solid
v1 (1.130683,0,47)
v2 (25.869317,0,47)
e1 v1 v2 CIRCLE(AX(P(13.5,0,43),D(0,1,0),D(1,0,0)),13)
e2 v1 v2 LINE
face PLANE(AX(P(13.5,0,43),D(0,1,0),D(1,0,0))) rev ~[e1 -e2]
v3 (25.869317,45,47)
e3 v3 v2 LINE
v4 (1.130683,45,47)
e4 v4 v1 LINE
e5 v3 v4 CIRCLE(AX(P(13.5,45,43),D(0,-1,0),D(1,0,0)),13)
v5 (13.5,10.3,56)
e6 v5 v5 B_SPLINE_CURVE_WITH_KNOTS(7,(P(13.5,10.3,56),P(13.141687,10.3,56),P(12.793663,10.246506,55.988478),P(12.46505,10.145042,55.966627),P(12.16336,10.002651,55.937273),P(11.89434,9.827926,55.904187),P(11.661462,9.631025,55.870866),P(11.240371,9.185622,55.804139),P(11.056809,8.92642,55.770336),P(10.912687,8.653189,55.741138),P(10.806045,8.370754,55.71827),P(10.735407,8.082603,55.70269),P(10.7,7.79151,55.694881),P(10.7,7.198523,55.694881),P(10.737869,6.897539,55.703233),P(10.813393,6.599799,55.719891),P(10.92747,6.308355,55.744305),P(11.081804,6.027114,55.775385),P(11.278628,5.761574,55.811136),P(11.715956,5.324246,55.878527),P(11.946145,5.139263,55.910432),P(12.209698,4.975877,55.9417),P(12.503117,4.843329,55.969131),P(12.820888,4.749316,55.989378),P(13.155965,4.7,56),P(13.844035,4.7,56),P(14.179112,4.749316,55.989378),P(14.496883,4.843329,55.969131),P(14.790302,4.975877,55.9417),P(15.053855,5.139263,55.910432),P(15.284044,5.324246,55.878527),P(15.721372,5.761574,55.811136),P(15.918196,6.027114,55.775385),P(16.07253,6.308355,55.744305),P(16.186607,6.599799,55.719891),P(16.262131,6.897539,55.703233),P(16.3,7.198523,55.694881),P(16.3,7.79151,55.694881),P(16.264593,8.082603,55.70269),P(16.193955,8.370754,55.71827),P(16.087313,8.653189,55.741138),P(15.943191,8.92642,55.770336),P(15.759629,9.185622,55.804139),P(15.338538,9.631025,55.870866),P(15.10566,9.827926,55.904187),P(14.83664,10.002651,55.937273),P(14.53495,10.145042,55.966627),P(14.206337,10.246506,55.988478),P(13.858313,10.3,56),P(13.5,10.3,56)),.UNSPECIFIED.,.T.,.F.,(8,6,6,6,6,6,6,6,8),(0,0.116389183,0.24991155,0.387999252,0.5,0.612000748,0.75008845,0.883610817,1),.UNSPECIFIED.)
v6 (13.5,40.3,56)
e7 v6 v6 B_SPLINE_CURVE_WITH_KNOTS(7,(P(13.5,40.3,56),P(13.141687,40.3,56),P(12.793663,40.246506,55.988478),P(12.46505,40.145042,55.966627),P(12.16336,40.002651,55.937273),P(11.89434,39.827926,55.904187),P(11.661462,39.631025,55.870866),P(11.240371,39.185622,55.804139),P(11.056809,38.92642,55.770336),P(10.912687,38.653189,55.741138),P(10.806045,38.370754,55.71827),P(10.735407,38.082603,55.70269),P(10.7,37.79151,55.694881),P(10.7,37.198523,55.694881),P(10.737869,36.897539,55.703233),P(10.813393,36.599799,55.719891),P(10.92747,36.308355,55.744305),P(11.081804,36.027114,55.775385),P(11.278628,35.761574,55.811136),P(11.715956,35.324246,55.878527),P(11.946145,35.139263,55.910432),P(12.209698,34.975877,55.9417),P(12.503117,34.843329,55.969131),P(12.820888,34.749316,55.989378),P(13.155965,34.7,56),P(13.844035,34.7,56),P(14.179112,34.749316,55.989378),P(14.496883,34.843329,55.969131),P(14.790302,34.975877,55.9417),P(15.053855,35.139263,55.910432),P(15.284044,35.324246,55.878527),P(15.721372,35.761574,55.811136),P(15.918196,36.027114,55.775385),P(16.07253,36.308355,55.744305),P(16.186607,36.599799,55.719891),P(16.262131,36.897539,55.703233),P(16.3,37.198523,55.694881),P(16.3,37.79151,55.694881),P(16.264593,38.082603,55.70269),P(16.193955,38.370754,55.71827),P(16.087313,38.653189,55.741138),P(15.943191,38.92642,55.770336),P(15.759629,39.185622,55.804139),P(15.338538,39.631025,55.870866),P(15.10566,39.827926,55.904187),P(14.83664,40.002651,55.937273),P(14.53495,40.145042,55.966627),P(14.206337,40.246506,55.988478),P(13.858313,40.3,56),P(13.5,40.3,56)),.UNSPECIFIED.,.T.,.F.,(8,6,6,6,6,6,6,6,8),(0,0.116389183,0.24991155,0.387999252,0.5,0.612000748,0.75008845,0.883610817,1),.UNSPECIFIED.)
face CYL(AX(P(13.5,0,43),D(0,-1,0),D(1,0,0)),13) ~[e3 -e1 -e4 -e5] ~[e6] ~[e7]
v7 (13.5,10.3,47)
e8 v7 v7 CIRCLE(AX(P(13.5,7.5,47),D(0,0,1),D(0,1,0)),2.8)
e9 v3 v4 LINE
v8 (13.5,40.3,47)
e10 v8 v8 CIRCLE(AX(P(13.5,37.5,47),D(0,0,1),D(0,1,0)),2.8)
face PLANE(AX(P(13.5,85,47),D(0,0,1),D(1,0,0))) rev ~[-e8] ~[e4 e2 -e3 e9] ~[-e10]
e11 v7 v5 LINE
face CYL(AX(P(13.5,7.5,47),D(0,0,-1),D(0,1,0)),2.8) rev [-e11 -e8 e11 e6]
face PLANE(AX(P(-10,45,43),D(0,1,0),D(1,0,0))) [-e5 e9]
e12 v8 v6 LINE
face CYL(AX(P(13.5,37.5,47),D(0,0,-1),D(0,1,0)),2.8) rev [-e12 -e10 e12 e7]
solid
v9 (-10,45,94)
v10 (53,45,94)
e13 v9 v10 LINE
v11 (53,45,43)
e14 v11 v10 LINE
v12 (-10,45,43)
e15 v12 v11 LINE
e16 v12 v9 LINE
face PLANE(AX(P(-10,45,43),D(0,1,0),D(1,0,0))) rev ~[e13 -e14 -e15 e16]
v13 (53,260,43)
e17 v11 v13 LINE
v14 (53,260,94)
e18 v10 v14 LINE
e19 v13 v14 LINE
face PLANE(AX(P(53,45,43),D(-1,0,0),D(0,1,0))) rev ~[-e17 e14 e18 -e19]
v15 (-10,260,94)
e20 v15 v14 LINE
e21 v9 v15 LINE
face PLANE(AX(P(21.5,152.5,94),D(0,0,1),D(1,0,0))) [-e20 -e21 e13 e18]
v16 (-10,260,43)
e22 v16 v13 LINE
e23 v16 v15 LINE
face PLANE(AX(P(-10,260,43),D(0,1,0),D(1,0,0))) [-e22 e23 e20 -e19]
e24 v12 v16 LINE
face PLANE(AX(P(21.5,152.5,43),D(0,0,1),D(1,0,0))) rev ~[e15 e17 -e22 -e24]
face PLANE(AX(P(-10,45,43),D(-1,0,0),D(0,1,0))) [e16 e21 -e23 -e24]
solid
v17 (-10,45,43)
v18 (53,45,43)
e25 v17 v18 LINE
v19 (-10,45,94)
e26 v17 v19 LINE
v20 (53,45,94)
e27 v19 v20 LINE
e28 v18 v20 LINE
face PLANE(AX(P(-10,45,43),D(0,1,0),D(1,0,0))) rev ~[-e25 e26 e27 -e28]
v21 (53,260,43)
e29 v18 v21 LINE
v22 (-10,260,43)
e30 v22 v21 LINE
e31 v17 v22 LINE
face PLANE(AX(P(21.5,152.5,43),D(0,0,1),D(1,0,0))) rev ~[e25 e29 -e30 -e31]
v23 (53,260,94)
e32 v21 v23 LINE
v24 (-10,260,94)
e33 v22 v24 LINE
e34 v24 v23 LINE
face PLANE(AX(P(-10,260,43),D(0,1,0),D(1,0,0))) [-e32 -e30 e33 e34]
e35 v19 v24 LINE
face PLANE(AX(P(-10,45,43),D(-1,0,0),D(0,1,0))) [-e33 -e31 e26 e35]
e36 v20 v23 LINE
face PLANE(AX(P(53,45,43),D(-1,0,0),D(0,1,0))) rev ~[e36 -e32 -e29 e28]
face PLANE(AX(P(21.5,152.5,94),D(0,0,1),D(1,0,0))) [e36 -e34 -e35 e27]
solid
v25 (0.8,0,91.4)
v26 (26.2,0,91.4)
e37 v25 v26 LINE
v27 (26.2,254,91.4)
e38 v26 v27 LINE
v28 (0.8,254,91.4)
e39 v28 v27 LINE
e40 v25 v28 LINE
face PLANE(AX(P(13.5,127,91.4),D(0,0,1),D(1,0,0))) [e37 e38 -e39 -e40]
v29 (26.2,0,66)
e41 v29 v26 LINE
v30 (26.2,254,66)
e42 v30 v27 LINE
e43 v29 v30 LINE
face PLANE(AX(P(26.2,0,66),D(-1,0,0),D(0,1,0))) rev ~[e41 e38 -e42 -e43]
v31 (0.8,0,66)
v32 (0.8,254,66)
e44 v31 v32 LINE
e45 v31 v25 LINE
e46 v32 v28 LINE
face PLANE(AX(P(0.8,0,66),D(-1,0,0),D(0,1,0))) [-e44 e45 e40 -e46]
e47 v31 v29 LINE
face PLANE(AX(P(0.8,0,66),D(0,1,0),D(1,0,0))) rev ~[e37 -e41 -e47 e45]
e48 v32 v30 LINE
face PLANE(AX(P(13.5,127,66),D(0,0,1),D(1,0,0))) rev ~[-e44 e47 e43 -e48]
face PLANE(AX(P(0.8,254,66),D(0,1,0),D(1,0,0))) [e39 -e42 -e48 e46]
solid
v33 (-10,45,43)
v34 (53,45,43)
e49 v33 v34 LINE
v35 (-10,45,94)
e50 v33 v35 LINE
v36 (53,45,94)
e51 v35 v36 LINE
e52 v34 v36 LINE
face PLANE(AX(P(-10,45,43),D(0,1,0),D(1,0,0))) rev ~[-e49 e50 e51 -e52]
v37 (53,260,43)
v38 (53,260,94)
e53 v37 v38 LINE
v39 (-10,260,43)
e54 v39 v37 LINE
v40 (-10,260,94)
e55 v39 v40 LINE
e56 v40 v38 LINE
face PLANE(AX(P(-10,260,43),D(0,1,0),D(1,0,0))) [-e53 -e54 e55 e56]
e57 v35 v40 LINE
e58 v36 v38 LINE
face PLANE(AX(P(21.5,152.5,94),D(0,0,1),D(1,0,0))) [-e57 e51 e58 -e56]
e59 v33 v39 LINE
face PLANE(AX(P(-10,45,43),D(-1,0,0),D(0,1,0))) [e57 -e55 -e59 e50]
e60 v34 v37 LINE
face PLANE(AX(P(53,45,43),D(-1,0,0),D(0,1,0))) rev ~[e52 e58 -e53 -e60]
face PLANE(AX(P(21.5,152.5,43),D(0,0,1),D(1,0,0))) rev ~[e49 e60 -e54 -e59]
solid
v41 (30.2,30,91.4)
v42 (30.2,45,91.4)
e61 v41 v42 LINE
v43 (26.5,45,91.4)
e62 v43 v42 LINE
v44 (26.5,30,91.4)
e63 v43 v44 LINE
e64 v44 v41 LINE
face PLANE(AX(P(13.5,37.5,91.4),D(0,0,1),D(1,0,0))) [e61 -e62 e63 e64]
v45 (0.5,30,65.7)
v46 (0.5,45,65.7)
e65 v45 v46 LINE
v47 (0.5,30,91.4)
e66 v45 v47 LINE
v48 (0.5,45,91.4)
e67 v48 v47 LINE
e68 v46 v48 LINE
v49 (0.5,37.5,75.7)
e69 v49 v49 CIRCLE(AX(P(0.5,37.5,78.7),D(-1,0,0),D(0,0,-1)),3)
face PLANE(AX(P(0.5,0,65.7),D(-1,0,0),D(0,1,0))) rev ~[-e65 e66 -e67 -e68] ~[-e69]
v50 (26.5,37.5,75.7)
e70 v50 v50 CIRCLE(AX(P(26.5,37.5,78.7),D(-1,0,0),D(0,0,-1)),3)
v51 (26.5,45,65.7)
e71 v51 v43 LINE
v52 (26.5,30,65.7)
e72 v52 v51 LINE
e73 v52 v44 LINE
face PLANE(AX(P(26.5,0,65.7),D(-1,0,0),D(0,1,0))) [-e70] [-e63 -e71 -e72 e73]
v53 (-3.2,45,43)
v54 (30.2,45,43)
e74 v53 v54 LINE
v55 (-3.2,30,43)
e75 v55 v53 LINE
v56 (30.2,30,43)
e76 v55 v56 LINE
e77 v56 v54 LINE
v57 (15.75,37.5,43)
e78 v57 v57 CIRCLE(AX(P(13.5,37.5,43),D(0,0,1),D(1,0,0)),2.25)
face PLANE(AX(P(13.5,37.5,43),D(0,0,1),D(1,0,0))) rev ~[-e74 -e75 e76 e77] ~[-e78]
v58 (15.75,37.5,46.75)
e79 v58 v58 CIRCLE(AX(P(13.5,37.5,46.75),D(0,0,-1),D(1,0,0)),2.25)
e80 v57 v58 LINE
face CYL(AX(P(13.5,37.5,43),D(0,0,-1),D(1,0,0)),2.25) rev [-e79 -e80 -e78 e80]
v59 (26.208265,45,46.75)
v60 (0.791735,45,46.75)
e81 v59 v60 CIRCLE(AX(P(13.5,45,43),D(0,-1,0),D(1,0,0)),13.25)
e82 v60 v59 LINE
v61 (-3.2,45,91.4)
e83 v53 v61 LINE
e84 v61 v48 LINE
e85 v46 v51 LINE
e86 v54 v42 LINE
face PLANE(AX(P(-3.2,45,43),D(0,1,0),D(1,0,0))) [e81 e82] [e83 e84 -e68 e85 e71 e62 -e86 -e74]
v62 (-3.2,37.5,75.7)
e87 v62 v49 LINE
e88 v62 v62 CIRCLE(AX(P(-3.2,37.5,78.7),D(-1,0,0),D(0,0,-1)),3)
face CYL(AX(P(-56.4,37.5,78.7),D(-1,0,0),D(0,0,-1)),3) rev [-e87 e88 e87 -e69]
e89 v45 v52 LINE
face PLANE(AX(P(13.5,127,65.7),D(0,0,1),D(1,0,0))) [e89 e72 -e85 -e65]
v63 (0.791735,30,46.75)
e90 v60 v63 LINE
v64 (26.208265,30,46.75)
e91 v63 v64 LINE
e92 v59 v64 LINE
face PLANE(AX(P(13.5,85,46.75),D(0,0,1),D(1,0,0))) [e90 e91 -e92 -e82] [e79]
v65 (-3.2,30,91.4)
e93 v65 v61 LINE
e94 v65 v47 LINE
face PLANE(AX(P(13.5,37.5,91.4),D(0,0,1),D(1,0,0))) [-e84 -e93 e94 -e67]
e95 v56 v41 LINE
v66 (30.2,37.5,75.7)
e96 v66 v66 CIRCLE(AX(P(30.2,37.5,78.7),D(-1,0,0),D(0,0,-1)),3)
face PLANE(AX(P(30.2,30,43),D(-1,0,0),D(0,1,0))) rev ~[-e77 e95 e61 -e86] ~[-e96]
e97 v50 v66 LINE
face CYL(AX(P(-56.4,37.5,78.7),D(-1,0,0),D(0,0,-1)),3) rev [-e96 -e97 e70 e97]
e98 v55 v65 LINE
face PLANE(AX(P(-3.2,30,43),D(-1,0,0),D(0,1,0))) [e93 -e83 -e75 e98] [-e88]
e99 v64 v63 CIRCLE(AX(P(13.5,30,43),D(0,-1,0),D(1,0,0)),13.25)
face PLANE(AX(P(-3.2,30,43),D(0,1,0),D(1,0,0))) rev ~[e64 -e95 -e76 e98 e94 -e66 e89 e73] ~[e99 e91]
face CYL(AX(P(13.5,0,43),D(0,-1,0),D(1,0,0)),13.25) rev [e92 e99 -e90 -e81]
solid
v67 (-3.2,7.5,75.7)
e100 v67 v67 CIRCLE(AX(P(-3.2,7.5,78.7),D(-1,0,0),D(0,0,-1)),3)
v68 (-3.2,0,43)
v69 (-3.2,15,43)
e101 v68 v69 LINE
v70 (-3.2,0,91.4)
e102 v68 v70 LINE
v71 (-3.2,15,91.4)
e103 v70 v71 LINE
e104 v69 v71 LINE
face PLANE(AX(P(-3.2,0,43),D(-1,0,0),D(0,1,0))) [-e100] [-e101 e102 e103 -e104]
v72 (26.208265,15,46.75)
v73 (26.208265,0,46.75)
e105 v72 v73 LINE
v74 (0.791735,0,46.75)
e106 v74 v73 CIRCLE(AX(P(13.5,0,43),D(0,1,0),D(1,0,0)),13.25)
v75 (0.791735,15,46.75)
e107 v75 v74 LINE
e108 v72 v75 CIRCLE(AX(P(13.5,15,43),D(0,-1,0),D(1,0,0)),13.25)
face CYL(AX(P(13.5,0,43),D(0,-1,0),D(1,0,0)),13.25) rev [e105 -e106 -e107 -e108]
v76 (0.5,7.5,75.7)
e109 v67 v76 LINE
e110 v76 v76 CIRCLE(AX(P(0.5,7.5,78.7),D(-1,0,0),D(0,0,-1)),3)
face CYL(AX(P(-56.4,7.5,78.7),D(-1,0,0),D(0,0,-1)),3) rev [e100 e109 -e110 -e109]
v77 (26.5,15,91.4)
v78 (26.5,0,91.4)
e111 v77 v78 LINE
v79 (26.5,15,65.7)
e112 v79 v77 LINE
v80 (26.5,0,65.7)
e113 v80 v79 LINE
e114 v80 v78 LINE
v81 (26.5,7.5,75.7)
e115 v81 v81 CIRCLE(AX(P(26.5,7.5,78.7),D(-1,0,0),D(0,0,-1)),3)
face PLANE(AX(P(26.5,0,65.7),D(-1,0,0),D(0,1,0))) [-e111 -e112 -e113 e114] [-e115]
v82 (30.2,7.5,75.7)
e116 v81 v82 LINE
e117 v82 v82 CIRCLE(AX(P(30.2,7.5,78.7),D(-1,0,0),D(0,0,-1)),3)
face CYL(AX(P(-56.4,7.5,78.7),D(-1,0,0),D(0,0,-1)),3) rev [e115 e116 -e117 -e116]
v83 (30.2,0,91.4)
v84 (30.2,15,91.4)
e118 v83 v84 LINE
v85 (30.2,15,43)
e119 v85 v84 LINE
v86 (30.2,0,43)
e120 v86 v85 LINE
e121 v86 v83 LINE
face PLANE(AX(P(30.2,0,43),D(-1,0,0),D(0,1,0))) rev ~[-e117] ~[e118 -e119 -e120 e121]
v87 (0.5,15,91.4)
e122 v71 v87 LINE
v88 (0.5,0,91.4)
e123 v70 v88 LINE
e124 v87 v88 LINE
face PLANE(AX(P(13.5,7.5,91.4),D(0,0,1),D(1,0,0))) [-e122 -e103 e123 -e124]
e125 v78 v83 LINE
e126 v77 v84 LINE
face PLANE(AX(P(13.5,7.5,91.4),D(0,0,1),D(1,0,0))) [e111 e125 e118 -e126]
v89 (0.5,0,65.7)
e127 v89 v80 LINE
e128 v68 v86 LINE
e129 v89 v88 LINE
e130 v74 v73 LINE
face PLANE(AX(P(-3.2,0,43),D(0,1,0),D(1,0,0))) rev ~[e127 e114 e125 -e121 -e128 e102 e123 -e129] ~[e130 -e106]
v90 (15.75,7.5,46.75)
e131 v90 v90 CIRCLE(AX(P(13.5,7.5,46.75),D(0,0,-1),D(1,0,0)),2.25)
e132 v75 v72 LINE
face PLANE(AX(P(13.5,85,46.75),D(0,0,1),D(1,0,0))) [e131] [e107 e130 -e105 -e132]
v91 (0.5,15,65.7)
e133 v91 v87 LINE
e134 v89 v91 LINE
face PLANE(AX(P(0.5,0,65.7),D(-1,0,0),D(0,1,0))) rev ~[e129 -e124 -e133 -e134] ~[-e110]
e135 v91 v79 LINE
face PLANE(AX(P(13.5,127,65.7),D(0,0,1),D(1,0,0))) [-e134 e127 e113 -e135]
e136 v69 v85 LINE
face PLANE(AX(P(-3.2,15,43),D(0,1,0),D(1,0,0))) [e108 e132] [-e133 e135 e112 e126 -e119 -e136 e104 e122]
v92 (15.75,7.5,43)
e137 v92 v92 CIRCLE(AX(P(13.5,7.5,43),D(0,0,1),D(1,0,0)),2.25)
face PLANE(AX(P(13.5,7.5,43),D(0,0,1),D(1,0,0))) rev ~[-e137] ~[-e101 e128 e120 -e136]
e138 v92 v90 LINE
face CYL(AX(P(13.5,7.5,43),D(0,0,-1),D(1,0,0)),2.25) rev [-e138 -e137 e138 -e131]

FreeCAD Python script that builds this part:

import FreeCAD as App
import Part
import Sketcher
Q = App.Units.Quantity


def add_polygon(sketch, points):
    """Adds a closed chain of lines whose ends are joined by coincident constraints."""
    first, n = sketch.GeometryCount, len(points)
    for a, b in zip(points, points[1:] + points[:1]):
        sketch.addGeometry(Part.LineSegment(App.Vector(*a, 0), App.Vector(*b, 0)), False)
    for i in range(n):
        sketch.addConstraint(Sketcher.Constraint("Coincident", first + i, 2, first + (i + 1) % n, 1))

doc = App.newDocument("Part")
body = doc.addObject("PartDesign::Body", "Body")

# Sketch on XY plane
sketch1 = body.newObject("Sketcher::SketchObject", "Sketch")
sketch1.AttachmentSupport = (doc.getObject("XY_Plane"), [""])
sketch1.MapMode = "FlatFace"
sketch1.AttachmentOffset = App.Placement(App.Vector(0, 0, 66), App.Rotation())
add_polygon(sketch1, [(0.8, 254), (0.8, 0), (26.2, 0), (26.2, 254)])  # lines 0-3
sketch1.addConstraint([
    Sketcher.Constraint("Vertical", 0),
    Sketcher.Constraint("Horizontal", 1),
    Sketcher.Constraint("Vertical", 2),
    Sketcher.Constraint("Horizontal", 3),
    Sketcher.Constraint("PointOnObject", 0, 2, -1),
    Sketcher.Constraint("DistanceY", 0, 2, 0, 1, Q("254 mm")),
    Sketcher.Constraint("DistanceX", 1, 1, 1, 2, Q("25.4 mm")),
    Sketcher.Constraint("DistanceX", -1, 1, 0, 2, Q("0.8 mm")),
])
pad1 = body.newObject("PartDesign::Pad", "Pad")
pad1.Profile = sketch1
pad1.Length = 25.4
body2 = doc.addObject("PartDesign::Body", "Body001")

# Sketch on XY plane
sketch2 = body2.newObject("Sketcher::SketchObject", "Sketch001")
sketch2.AttachmentSupport = (doc.getObject("XY_Plane001"), [""])
sketch2.MapMode = "FlatFace"
sketch2.AttachmentOffset = App.Placement(App.Vector(0, 0, 43), App.Rotation())
add_polygon(sketch2, [(-10, 260), (-10, 45), (53, 45), (53, 260)])  # lines 0-3
sketch2.addConstraint([
    Sketcher.Constraint("Vertical", 0),
    Sketcher.Constraint("Horizontal", 1),
    Sketcher.Constraint("Vertical", 2),
    Sketcher.Constraint("Horizontal", 3),
    Sketcher.Constraint("DistanceX", 1, 1, 1, 2, Q("63 mm")),
    Sketcher.Constraint("DistanceY", 0, 2, 0, 1, Q("215 mm")),
    Sketcher.Constraint("DistanceX", 0, 2, -1, 1, Q("10 mm")),
    Sketcher.Constraint("DistanceY", -1, 1, 0, 2, Q("45 mm")),
])
pad2 = body2.newObject("PartDesign::Pad", "Pad001")
pad2.Profile = sketch2
pad2.Length = 51
body3 = doc.addObject("PartDesign::Body", "Body002")

# Sketch on XY plane
sketch3 = body3.newObject("Sketcher::SketchObject", "Sketch002")
sketch3.AttachmentSupport = (doc.getObject("XY_Plane002"), [""])
sketch3.MapMode = "FlatFace"
sketch3.AttachmentOffset = App.Placement(App.Vector(0, 0, 43), App.Rotation())
add_polygon(sketch3, [(-10, 260), (-10, 45), (53, 45), (53, 260)])  # lines 0-3
sketch3.addConstraint([
    Sketcher.Constraint("Vertical", 0),
    Sketcher.Constraint("Horizontal", 1),
    Sketcher.Constraint("Vertical", 2),
    Sketcher.Constraint("Horizontal", 3),
    Sketcher.Constraint("DistanceX", 1, 1, 1, 2, Q("63 mm")),
    Sketcher.Constraint("DistanceY", 0, 2, 0, 1, Q("215 mm")),
    Sketcher.Constraint("DistanceX", 0, 2, -1, 1, Q("10 mm")),
    Sketcher.Constraint("DistanceY", -1, 1, 0, 2, Q("45 mm")),
])
pad3 = body3.newObject("PartDesign::Pad", "Pad002")
pad3.Profile = sketch3
pad3.Length = 51
body4 = doc.addObject("PartDesign::Body", "Body003")

# Sketch on XY plane
sketch4 = body4.newObject("Sketcher::SketchObject", "Sketch003")
sketch4.AttachmentSupport = (doc.getObject("XY_Plane003"), [""])
sketch4.MapMode = "FlatFace"
sketch4.AttachmentOffset = App.Placement(App.Vector(0, 0, 43), App.Rotation())
add_polygon(sketch4, [(-10, 260), (-10, 45), (53, 45), (53, 260)])  # lines 0-3
sketch4.addConstraint([
    Sketcher.Constraint("Vertical", 0),
    Sketcher.Constraint("Horizontal", 1),
    Sketcher.Constraint("Vertical", 2),
    Sketcher.Constraint("Horizontal", 3),
    Sketcher.Constraint("DistanceX", 1, 1, 1, 2, Q("63 mm")),
    Sketcher.Constraint("DistanceY", 0, 2, 0, 1, Q("215 mm")),
    Sketcher.Constraint("DistanceX", 0, 2, -1, 1, Q("10 mm")),
    Sketcher.Constraint("DistanceY", -1, 1, 0, 2, Q("45 mm")),
])
pad4 = body4.newObject("PartDesign::Pad", "Pad003")
pad4.Profile = sketch4
pad4.Length = 51
body5 = doc.addObject("PartDesign::Body", "Body004")

# Sketch on XY plane
sketch5 = body5.newObject("Sketcher::SketchObject", "Sketch004")
sketch5.AttachmentSupport = (doc.getObject("XY_Plane004"), [""])
sketch5.MapMode = "FlatFace"
sketch5.AttachmentOffset = App.Placement(App.Vector(0, 0, 47), App.Rotation())
sketch5.addGeometry(Part.Circle(App.Vector(13.5, 7.5, 0), App.Vector(0, 0, 1), 2.8), False)
sketch5.addConstraint([
    Sketcher.Constraint("Diameter", 0, Q("5.6 mm")),
    Sketcher.Constraint("DistanceX", -1, 1, 0, 3, Q("13.5 mm")),
    Sketcher.Constraint("DistanceY", -1, 1, 0, 3, Q("7.5 mm")),
])
pad5 = body5.newObject("PartDesign::Pad", "Pad004")
pad5.Profile = sketch5
pad5.Length = 10
body6 = doc.addObject("PartDesign::Body", "Body005")
body6.AllowCompound = True

# Sketch on XY plane
sketch6 = body6.newObject("Sketcher::SketchObject", "Sketch005")
sketch6.AttachmentSupport = (doc.getObject("XY_Plane005"), [""])
sketch6.MapMode = "FlatFace"
sketch6.AttachmentOffset = App.Placement(App.Vector(0, 0, 47), App.Rotation())
sketch6.addGeometry(Part.Circle(App.Vector(13.5, 37.5, 0), App.Vector(0, 0, 1), 2.8), False)
sketch6.addConstraint([
    Sketcher.Constraint("Diameter", 0, Q("5.6 mm")),
    Sketcher.Constraint("DistanceX", -1, 1, 0, 3, Q("13.5 mm")),
    Sketcher.Constraint("DistanceY", -1, 1, 0, 3, Q("37.5 mm")),
])
pad6 = body6.newObject("PartDesign::Pad", "Pad005")
pad6.Profile = sketch6
pad6.Length = 10
doc.recompute()

boolean = body6.newObject("PartDesign::Boolean", "Boolean")
boolean.Type = "Fuse"
boolean.addObjects([body5])
body7 = doc.addObject("PartDesign::Body", "Body006")

# Sketch on XY plane
sketch7 = body7.newObject("Sketcher::SketchObject", "Sketch006")
sketch7.AttachmentSupport = (doc.getObject("XY_Plane006"), [""])
sketch7.MapMode = "FlatFace"
sketch7.AttachmentOffset = App.Placement(App.Vector(0, 0, 43), App.Rotation())
add_polygon(sketch7, [(-10, 260), (-10, 45), (53, 45), (53, 260)])  # lines 0-3
sketch7.addConstraint([
    Sketcher.Constraint("Vertical", 0),
    Sketcher.Constraint("Horizontal", 1),
    Sketcher.Constraint("Vertical", 2),
    Sketcher.Constraint("Horizontal", 3),
    Sketcher.Constraint("DistanceX", 1, 1, 1, 2, Q("63 mm")),
    Sketcher.Constraint("DistanceY", 0, 2, 0, 1, Q("215 mm")),
    Sketcher.Constraint("DistanceX", 0, 2, -1, 1, Q("10 mm")),
    Sketcher.Constraint("DistanceY", -1, 1, 0, 2, Q("45 mm")),
])
pad7 = body7.newObject("PartDesign::Pad", "Pad006")
pad7.Profile = sketch7
pad7.Length = 51
body8 = doc.addObject("PartDesign::Body", "Body007")

# Sketch on XY plane
sketch8 = body8.newObject("Sketcher::SketchObject", "Sketch007")
sketch8.AttachmentSupport = (doc.getObject("XY_Plane007"), [""])
sketch8.MapMode = "FlatFace"
sketch8.AttachmentOffset = App.Placement(App.Vector(0, 0, 27), App.Rotation())
add_polygon(sketch8, [(0, 200), (0, 0), (27, 0), (27, 200)])  # lines 0-3
sketch8.addConstraint([
    Sketcher.Constraint("Vertical", 0),
    Sketcher.Constraint("Horizontal", 1),
    Sketcher.Constraint("Vertical", 2),
    Sketcher.Constraint("Horizontal", 3),
    Sketcher.Constraint("Coincident", 0, 2, -1, 1),
    Sketcher.Constraint("DistanceX", 1, 1, 1, 2, Q("27 mm")),
    Sketcher.Constraint("DistanceY", 0, 2, 0, 1, Q("200 mm")),
])
pad8 = body8.newObject("PartDesign::Pad", "Pad007")
pad8.Profile = sketch8
pad8.Length = 20
body9 = doc.addObject("PartDesign::Body", "Body008")

# Sketch on XZ plane
sketch9 = body9.newObject("Sketcher::SketchObject", "Sketch008")
sketch9.AttachmentSupport = (doc.getObject("XZ_Plane008"), [""])
sketch9.MapMode = "FlatFace"
sketch9.AttachmentOffset = App.Placement(App.Vector(0, 0, -15), App.Rotation())
sketch9.addGeometry(Part.Circle(App.Vector(13.5, 43, 0), App.Vector(0, 0, 1), 13), False)
sketch9.addConstraint([
    Sketcher.Constraint("Diameter", 0, Q("26 mm")),
    Sketcher.Constraint("DistanceY", -1, 1, 0, 3, Q("43 mm")),
    Sketcher.Constraint("DistanceX", -1, 1, 0, 3, Q("13.5 mm")),
])
pad9 = body9.newObject("PartDesign::Pad", "Pad008")
pad9.Profile = sketch9
pad9.Length = 120
pad9.Reversed = True
doc.recompute()

boolean2 = body9.newObject("PartDesign::Boolean", "Boolean001")
boolean2.Type = "Cut"
boolean2.addObjects([body8])
body10 = doc.addObject("PartDesign::Body", "Body009")
doc.recompute()

body9.Placement = App.Placement(App.Vector(0, -15, 0), App.Rotation(App.Vector(0, 0, 1), 0))
boolean3 = body10.newObject("PartDesign::Boolean", "Boolean002")
boolean3.Type = "Fuse"
boolean3.addObjects([body9])
doc.recompute()

boolean4 = body10.newObject("PartDesign::Boolean", "Boolean003")
boolean4.Type = "Cut"
boolean4.addObjects([body7])
doc.recompute()

boolean5 = body10.newObject("PartDesign::Boolean", "Boolean004")
boolean5.Type = "Cut"
boolean5.addObjects([body6])
body11 = doc.addObject("PartDesign::Body", "Body010")

# Sketch on XY plane
sketch10 = body11.newObject("Sketcher::SketchObject", "Sketch009")
sketch10.AttachmentSupport = (doc.getObject("XY_Plane010"), [""])
sketch10.MapMode = "FlatFace"
sketch10.AttachmentOffset = App.Placement(App.Vector(0, 0, 43), App.Rotation())
sketch10.addGeometry(Part.Circle(App.Vector(13.5, 7.5, 0), App.Vector(0, 0, 1), 2.25), False)
sketch10.addConstraint([
    Sketcher.Constraint("Diameter", 0, Q("4.5 mm")),
    Sketcher.Constraint("DistanceX", -1, 1, 0, 3, Q("13.5 mm")),
    Sketcher.Constraint("DistanceY", -1, 1, 0, 3, Q("7.5 mm")),
])
pad10 = body11.newObject("PartDesign::Pad", "Pad009")
pad10.Profile = sketch10
pad10.Length = 10
body12 = doc.addObject("PartDesign::Body", "Body011")

# Sketch on YZ plane
sketch11 = body12.newObject("Sketcher::SketchObject", "Sketch010")
sketch11.AttachmentSupport = (doc.getObject("YZ_Plane011"), [""])
sketch11.MapMode = "FlatFace"
sketch11.AttachmentOffset = App.Placement(App.Vector(0, 0, -56.4), App.Rotation())
sketch11.addGeometry(Part.Circle(App.Vector(7.5, 78.7, 0), App.Vector(0, 0, 1), 3), False)
sketch11.addConstraint([
    Sketcher.Constraint("Diameter", 0, Q("6 mm")),
    Sketcher.Constraint("DistanceX", -1, 1, 0, 3, Q("7.5 mm")),
    Sketcher.Constraint("DistanceY", -1, 1, 0, 3, Q("78.7 mm")),
])
pad11 = body12.newObject("PartDesign::Pad", "Pad010")
pad11.Profile = sketch11
pad11.Length = 100
body13 = doc.addObject("PartDesign::Body", "Body012")

# Sketch on XY plane
sketch12 = body13.newObject("Sketcher::SketchObject", "Sketch011")
sketch12.AttachmentSupport = (doc.getObject("XY_Plane012"), [""])
sketch12.MapMode = "FlatFace"
sketch12.AttachmentOffset = App.Placement(App.Vector(0, 0, 26.75), App.Rotation())
add_polygon(sketch12, [(0, 200), (0, 0), (27, 0), (27, 200)])  # lines 0-3
sketch12.addConstraint([
    Sketcher.Constraint("Vertical", 0),
    Sketcher.Constraint("Horizontal", 1),
    Sketcher.Constraint("Vertical", 2),
    Sketcher.Constraint("Horizontal", 3),
    Sketcher.Constraint("Coincident", 0, 2, -1, 1),
    Sketcher.Constraint("DistanceX", 1, 1, 1, 2, Q("27 mm")),
    Sketcher.Constraint("DistanceY", 0, 2, 0, 1, Q("200 mm")),
])
pad12 = body13.newObject("PartDesign::Pad", "Pad011")
pad12.Profile = sketch12
pad12.Length = 20
body14 = doc.addObject("PartDesign::Body", "Body013")

# Sketch on XZ plane
sketch13 = body14.newObject("Sketcher::SketchObject", "Sketch012")
sketch13.AttachmentSupport = (doc.getObject("XZ_Plane013"), [""])
sketch13.MapMode = "FlatFace"
sketch13.AttachmentOffset = App.Placement(App.Vector(0, 0, -15), App.Rotation())
sketch13.addGeometry(Part.Circle(App.Vector(13.5, 43, 0), App.Vector(0, 0, 1), 13.25), False)
sketch13.addConstraint([
    Sketcher.Constraint("Diameter", 0, Q("26.5 mm")),
    Sketcher.Constraint("DistanceY", -1, 1, 0, 3, Q("43 mm")),
    Sketcher.Constraint("DistanceX", -1, 1, 0, 3, Q("13.5 mm")),
])
pad13 = body14.newObject("PartDesign::Pad", "Pad012")
pad13.Profile = sketch13
pad13.Length = 120
pad13.Reversed = True
doc.recompute()

boolean6 = body14.newObject("PartDesign::Boolean", "Boolean005")
boolean6.Type = "Cut"
boolean6.addObjects([body13])
body15 = doc.addObject("PartDesign::Body", "Body014")
doc.recompute()

body14.Placement = App.Placement(App.Vector(0, -15, 0), App.Rotation(App.Vector(0, 0, 1), 0))
boolean7 = body15.newObject("PartDesign::Boolean", "Boolean006")
boolean7.Type = "Fuse"
boolean7.addObjects([body14])
body16 = doc.addObject("PartDesign::Body", "Body015")

# Sketch on XY plane
sketch14 = body16.newObject("Sketcher::SketchObject", "Sketch013")
sketch14.AttachmentSupport = (doc.getObject("XY_Plane015"), [""])
sketch14.MapMode = "FlatFace"
sketch14.AttachmentOffset = App.Placement(App.Vector(0, 0, 65.7), App.Rotation())
add_polygon(sketch14, [(0.5, 254), (0.5, 0), (26.5, 0), (26.5, 254)])  # lines 0-3
sketch14.addConstraint([
    Sketcher.Constraint("Vertical", 0),
    Sketcher.Constraint("Horizontal", 1),
    Sketcher.Constraint("Vertical", 2),
    Sketcher.Constraint("Horizontal", 3),
    Sketcher.Constraint("PointOnObject", 0, 2, -1),
    Sketcher.Constraint("DistanceX", 1, 1, 1, 2, Q("26 mm")),
    Sketcher.Constraint("DistanceY", 0, 2, 0, 1, Q("254 mm")),
    Sketcher.Constraint("DistanceX", -1, 1, 0, 2, Q("0.5 mm")),
])
pad14 = body16.newObject("PartDesign::Pad", "Pad013")
pad14.Profile = sketch14
pad14.Length = 26
body17 = doc.addObject("PartDesign::Body", "Body016")

# Sketch on XY plane
sketch15 = body17.newObject("Sketcher::SketchObject", "Sketch014")
sketch15.AttachmentSupport = (doc.getObject("XY_Plane016"), [""])
sketch15.MapMode = "FlatFace"
sketch15.AttachmentOffset = App.Placement(App.Vector(0, 0, 43), App.Rotation())
add_polygon(sketch15, [(-3.2, 15), (-3.2, 0), (30.2, 0), (30.2, 15)])  # lines 0-3
sketch15.addConstraint([
    Sketcher.Constraint("Vertical", 0),
    Sketcher.Constraint("Horizontal", 1),
    Sketcher.Constraint("Vertical", 2),
    Sketcher.Constraint("Horizontal", 3),
    Sketcher.Constraint("PointOnObject", 0, 2, -1),
    Sketcher.Constraint("DistanceY", 0, 2, 0, 1, Q("15 mm")),
    Sketcher.Constraint("DistanceX", 1, 1, 1, 2, Q("33.4 mm")),
    Sketcher.Constraint("DistanceX", 0, 2, -1, 1, Q("3.2 mm")),
])
pad15 = body17.newObject("PartDesign::Pad", "Pad014")
pad15.Profile = sketch15
pad15.Length = 48.4
doc.recompute()

boolean8 = body17.newObject("PartDesign::Boolean", "Boolean007")
boolean8.Type = "Cut"
boolean8.addObjects([body16])
doc.recompute()

boolean9 = body17.newObject("PartDesign::Boolean", "Boolean008")
boolean9.Type = "Cut"
boolean9.addObjects([body15])
doc.recompute()

boolean10 = body17.newObject("PartDesign::Boolean", "Boolean009")
boolean10.Type = "Cut"
boolean10.addObjects([body12])
doc.recompute()

boolean11 = body17.newObject("PartDesign::Boolean", "Boolean010")
boolean11.Type = "Cut"
boolean11.addObjects([body11])
body18 = doc.addObject("PartDesign::Body", "Body017")

# Sketch on XY plane
sketch16 = body18.newObject("Sketcher::SketchObject", "Sketch015")
sketch16.AttachmentSupport = (doc.getObject("XY_Plane017"), [""])
sketch16.MapMode = "FlatFace"
sketch16.AttachmentOffset = App.Placement(App.Vector(0, 0, 43), App.Rotation())
sketch16.addGeometry(Part.Circle(App.Vector(13.5, 37.5, 0), App.Vector(0, 0, 1), 2.25), False)
sketch16.addConstraint([
    Sketcher.Constraint("Diameter", 0, Q("4.5 mm")),
    Sketcher.Constraint("DistanceX", -1, 1, 0, 3, Q("13.5 mm")),
    Sketcher.Constraint("DistanceY", -1, 1, 0, 3, Q("37.5 mm")),
])
pad16 = body18.newObject("PartDesign::Pad", "Pad015")
pad16.Profile = sketch16
pad16.Length = 10
body19 = doc.addObject("PartDesign::Body", "Body018")

# Sketch on YZ plane
sketch17 = body19.newObject("Sketcher::SketchObject", "Sketch016")
sketch17.AttachmentSupport = (doc.getObject("YZ_Plane018"), [""])
sketch17.MapMode = "FlatFace"
sketch17.AttachmentOffset = App.Placement(App.Vector(0, 0, -56.4), App.Rotation())
sketch17.addGeometry(Part.Circle(App.Vector(37.5, 78.7, 0), App.Vector(0, 0, 1), 3), False)
sketch17.addConstraint([
    Sketcher.Constraint("Diameter", 0, Q("6 mm")),
    Sketcher.Constraint("DistanceX", -1, 1, 0, 3, Q("37.5 mm")),
    Sketcher.Constraint("DistanceY", -1, 1, 0, 3, Q("78.7 mm")),
])
pad17 = body19.newObject("PartDesign::Pad", "Pad016")
pad17.Profile = sketch17
pad17.Length = 100
body20 = doc.addObject("PartDesign::Body", "Body019")

# Sketch on XY plane
sketch18 = body20.newObject("Sketcher::SketchObject", "Sketch017")
sketch18.AttachmentSupport = (doc.getObject("XY_Plane019"), [""])
sketch18.MapMode = "FlatFace"
sketch18.AttachmentOffset = App.Placement(App.Vector(0, 0, 26.75), App.Rotation())
add_polygon(sketch18, [(0, 200), (0, 0), (27, 0), (27, 200)])  # lines 0-3
sketch18.addConstraint([
    Sketcher.Constraint("Vertical", 0),
    Sketcher.Constraint("Horizontal", 1),
    Sketcher.Constraint("Vertical", 2),
    Sketcher.Constraint("Horizontal", 3),
    Sketcher.Constraint("Coincident", 0, 2, -1, 1),
    Sketcher.Constraint("DistanceX", 1, 1, 1, 2, Q("27 mm")),
    Sketcher.Constraint("DistanceY", 0, 2, 0, 1, Q("200 mm")),
])
pad18 = body20.newObject("PartDesign::Pad", "Pad017")
pad18.Profile = sketch18
pad18.Length = 20
body21 = doc.addObject("PartDesign::Body", "Body020")

# Sketch on XZ plane
sketch19 = body21.newObject("Sketcher::SketchObject", "Sketch018")
sketch19.AttachmentSupport = (doc.getObject("XZ_Plane020"), [""])
sketch19.MapMode = "FlatFace"
sketch19.AttachmentOffset = App.Placement(App.Vector(0, 0, -15), App.Rotation())
sketch19.addGeometry(Part.Circle(App.Vector(13.5, 43, 0), App.Vector(0, 0, 1), 13.25), False)
sketch19.addConstraint([
    Sketcher.Constraint("Diameter", 0, Q("26.5 mm")),
    Sketcher.Constraint("DistanceY", -1, 1, 0, 3, Q("43 mm")),
    Sketcher.Constraint("DistanceX", -1, 1, 0, 3, Q("13.5 mm")),
])
pad19 = body21.newObject("PartDesign::Pad", "Pad018")
pad19.Profile = sketch19
pad19.Length = 120
pad19.Reversed = True
doc.recompute()

boolean12 = body21.newObject("PartDesign::Boolean", "Boolean011")
boolean12.Type = "Cut"
boolean12.addObjects([body20])
body22 = doc.addObject("PartDesign::Body", "Body021")
doc.recompute()

body21.Placement = App.Placement(App.Vector(0, -15, 0), App.Rotation(App.Vector(0, 0, 1), 0))
boolean13 = body22.newObject("PartDesign::Boolean", "Boolean012")
boolean13.Type = "Fuse"
boolean13.addObjects([body21])
body23 = doc.addObject("PartDesign::Body", "Body022")

# Sketch on XY plane
sketch20 = body23.newObject("Sketcher::SketchObject", "Sketch019")
sketch20.AttachmentSupport = (doc.getObject("XY_Plane022"), [""])
sketch20.MapMode = "FlatFace"
sketch20.AttachmentOffset = App.Placement(App.Vector(0, 0, 65.7), App.Rotation())
add_polygon(sketch20, [(0.5, 254), (0.5, 0), (26.5, 0), (26.5, 254)])  # lines 0-3
sketch20.addConstraint([
    Sketcher.Constraint("Vertical", 0),
    Sketcher.Constraint("Horizontal", 1),
    Sketcher.Constraint("Vertical", 2),
    Sketcher.Constraint("Horizontal", 3),
    Sketcher.Constraint("PointOnObject", 0, 2, -1),
    Sketcher.Constraint("DistanceX", 1, 1, 1, 2, Q("26 mm")),
    Sketcher.Constraint("DistanceY", 0, 2, 0, 1, Q("254 mm")),
    Sketcher.Constraint("DistanceX", -1, 1, 0, 2, Q("0.5 mm")),
])
pad20 = body23.newObject("PartDesign::Pad", "Pad019")
pad20.Profile = sketch20
pad20.Length = 26
body24 = doc.addObject("PartDesign::Body", "Body023")

# Sketch on XY plane
sketch21 = body24.newObject("Sketcher::SketchObject", "Sketch020")
sketch21.AttachmentSupport = (doc.getObject("XY_Plane023"), [""])
sketch21.MapMode = "FlatFace"
sketch21.AttachmentOffset = App.Placement(App.Vector(0, 0, 43), App.Rotation())
add_polygon(sketch21, [(-3.2, 45), (-3.2, 30), (30.2, 30), (30.2, 45)])  # lines 0-3
sketch21.addConstraint([
    Sketcher.Constraint("Vertical", 0),
    Sketcher.Constraint("Horizontal", 1),
    Sketcher.Constraint("Vertical", 2),
    Sketcher.Constraint("Horizontal", 3),
    Sketcher.Constraint("DistanceY", 0, 2, 0, 1, Q("15 mm")),
    Sketcher.Constraint("DistanceX", 1, 1, 1, 2, Q("33.4 mm")),
    Sketcher.Constraint("DistanceY", -1, 1, 0, 2, Q("30 mm")),
    Sketcher.Constraint("DistanceX", 0, 2, -1, 1, Q("3.2 mm")),
])
pad21 = body24.newObject("PartDesign::Pad", "Pad020")
pad21.Profile = sketch21
pad21.Length = 48.4
doc.recompute()

boolean14 = body24.newObject("PartDesign::Boolean", "Boolean013")
boolean14.Type = "Cut"
boolean14.addObjects([body23])
doc.recompute()

boolean15 = body24.newObject("PartDesign::Boolean", "Boolean014")
boolean15.Type = "Cut"
boolean15.addObjects([body22])
doc.recompute()

boolean16 = body24.newObject("PartDesign::Boolean", "Boolean015")
boolean16.Type = "Cut"
boolean16.addObjects([body19])
doc.recompute()

boolean17 = body24.newObject("PartDesign::Boolean", "Boolean016")
boolean17.Type = "Cut"
boolean17.addObjects([body18])

doc.recompute()
